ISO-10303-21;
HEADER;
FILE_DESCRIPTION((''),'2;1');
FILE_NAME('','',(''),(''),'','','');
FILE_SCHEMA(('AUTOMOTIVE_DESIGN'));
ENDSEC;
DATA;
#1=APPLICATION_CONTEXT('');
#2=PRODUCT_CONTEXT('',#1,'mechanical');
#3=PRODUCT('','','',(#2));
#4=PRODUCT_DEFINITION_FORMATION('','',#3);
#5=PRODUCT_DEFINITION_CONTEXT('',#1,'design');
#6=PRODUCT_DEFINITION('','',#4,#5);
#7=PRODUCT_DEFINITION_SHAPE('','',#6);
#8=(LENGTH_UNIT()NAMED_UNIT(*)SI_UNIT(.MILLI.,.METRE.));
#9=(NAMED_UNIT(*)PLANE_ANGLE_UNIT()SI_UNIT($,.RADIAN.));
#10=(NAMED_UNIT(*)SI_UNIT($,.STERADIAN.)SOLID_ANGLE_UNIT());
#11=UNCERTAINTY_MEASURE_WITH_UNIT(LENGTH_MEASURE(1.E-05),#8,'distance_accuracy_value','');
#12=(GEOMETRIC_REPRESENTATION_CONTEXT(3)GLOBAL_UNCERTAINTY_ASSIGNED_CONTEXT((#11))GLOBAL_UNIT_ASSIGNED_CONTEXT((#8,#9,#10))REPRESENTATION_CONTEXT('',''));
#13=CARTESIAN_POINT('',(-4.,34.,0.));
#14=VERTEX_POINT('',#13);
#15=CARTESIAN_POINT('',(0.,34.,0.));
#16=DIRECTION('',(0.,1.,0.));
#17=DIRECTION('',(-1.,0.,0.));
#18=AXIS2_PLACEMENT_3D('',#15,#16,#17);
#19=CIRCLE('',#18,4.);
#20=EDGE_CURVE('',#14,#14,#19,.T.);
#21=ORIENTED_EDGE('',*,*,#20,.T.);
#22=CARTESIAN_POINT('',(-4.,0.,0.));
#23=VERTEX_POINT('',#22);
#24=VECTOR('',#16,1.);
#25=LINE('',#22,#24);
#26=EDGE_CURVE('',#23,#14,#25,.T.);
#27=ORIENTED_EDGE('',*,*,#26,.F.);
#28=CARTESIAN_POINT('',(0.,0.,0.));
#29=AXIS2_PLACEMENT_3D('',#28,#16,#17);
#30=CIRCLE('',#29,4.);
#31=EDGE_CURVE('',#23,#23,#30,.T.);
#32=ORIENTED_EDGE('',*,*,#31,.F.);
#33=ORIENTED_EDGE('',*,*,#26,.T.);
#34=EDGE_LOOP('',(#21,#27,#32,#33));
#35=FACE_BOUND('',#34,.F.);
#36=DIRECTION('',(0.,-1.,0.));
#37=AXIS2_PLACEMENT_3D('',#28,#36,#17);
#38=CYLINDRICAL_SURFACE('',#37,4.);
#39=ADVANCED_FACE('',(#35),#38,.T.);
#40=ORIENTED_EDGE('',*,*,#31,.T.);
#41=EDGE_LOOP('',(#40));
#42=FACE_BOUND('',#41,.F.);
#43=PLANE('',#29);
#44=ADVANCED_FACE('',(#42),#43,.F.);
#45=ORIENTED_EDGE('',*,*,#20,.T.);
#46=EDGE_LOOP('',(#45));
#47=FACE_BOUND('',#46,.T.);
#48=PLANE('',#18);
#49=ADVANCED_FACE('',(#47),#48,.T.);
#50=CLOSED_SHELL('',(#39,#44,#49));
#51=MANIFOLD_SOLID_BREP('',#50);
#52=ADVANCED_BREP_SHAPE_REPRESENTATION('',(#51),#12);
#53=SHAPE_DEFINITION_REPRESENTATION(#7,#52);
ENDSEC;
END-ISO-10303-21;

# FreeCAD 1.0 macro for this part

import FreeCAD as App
import Part
import Sketcher
from FreeCAD import Vector
Q = App.Units.Quantity

doc = App.newDocument("Part")
body = doc.addObject("PartDesign::Body", "Body")

sketch1 = body.newObject("Sketcher::SketchObject", "Sketch")
sketch1.AttachmentSupport = (doc.getObject("XZ_Plane"), [""])
sketch1.MapMode = "FlatFace"
sketch1.addGeometry(Part.Circle(Vector(0, 0, 0), Vector(0, 0, 1), 4), False)
sketch1.addConstraint([
    Sketcher.Constraint("Coincident", 0, 3, -1, 1),
    Sketcher.Constraint("Diameter", 0, Q("8 mm")),
])
pad1 = body.newObject("PartDesign::Pad", "Pad")
pad1.Profile = sketch1
pad1.Length = 34
pad1.Reversed = True

doc.recompute()
